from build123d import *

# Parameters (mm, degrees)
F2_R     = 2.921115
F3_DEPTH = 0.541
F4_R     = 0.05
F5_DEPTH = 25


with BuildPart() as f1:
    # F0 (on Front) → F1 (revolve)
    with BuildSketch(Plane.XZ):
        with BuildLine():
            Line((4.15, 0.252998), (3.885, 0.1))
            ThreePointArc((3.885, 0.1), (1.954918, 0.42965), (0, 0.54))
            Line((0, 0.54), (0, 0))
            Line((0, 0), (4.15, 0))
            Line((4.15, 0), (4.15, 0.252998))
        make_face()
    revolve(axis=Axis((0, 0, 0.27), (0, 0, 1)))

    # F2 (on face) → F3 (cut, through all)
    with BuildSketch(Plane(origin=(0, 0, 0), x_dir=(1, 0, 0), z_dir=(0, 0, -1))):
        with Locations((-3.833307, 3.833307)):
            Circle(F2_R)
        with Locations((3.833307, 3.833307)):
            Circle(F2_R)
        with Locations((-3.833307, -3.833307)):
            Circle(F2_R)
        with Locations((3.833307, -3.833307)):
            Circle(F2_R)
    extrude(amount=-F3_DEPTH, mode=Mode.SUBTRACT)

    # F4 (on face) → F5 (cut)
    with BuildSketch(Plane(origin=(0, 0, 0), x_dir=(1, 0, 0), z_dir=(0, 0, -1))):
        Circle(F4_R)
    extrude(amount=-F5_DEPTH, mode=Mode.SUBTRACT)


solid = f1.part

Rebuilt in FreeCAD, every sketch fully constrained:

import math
import FreeCAD as App
import Part
import Sketcher
Q = App.Units.Quantity

doc = App.newDocument("Part")
body = doc.addObject("PartDesign::Body", "Body")

# Sketch on XZ plane
sketch1 = body.newObject("Sketcher::SketchObject", "Sketch")
sketch1.AttachmentSupport = (doc.getObject("XZ_Plane"), [""])
sketch1.MapMode = "FlatFace"
sketch1.addGeometry([
    Part.LineSegment(App.Vector(4.15, 0.25, 0), App.Vector(3.88, 0.1, 0)),  # 0
    Part.ArcOfCircle(Part.Circle(App.Vector(0, -16.83, 0), App.Vector(0, 0, 1), 17.37), math.radians(77.08), math.radians(90)),  # 1
    Part.LineSegment(App.Vector(0, 0.54, 0), App.Vector(0, 0, 0)),  # 2
    Part.LineSegment(App.Vector(0, 0, 0), App.Vector(4.15, 0, 0)),  # 3
    Part.LineSegment(App.Vector(4.15, 0, 0), App.Vector(4.15, 0.25, 0)),  # 4
], False)
sketch1.addConstraint([
    Sketcher.Constraint("Coincident", 0, 2, 1, 1),
    Sketcher.Constraint("Coincident", 1, 2, 2, 1),
    Sketcher.Constraint("Coincident", 2, 2, 3, 1),
    Sketcher.Constraint("Coincident", 3, 2, 4, 1),
    Sketcher.Constraint("Coincident", 4, 2, 0, 1),
    Sketcher.Constraint("Vertical", 2),
    Sketcher.Constraint("Horizontal", 3),
    Sketcher.Constraint("Vertical", 4),
    Sketcher.Constraint("Coincident", 2, 2, -1, 1),
    Sketcher.Constraint("DistanceX", 3, 1, 3, 2, Q("4.15 mm")),
    Sketcher.Constraint("DistanceY", 2, 2, 2, 1, Q("0.54 mm")),
    Sketcher.Constraint("DistanceY", -1, 1, 0, 2, Q("0.1 mm")),
    Sketcher.Constraint("DistanceX", -1, 1, 0, 2, Q("3.885 mm")),
    Sketcher.Constraint("Radius", 1, Q("17.371323 mm")),
    Sketcher.Constraint("DistanceY", 4, 2, 1, 2, Q("0.287002 mm")),
])
revolution = body.newObject("PartDesign::Revolution", "Revolution")
revolution.Profile = sketch1
revolution.ReferenceAxis = (sketch1, ["V_Axis"])
revolution.Angle = 360

# Sketch on XY plane
sketch2 = body.newObject("Sketcher::SketchObject", "Sketch001")
sketch2.AttachmentSupport = (doc.getObject("XY_Plane"), [""])
sketch2.MapMode = "FlatFace"
sketch2.addGeometry([
    Part.Circle(App.Vector(-3.8, -3.8, 0), App.Vector(0, 0, 1), 2.9),
    Part.Circle(App.Vector(3.8, -3.8, 0), App.Vector(0, 0, 1), 2.9),
    Part.Circle(App.Vector(-3.8, 3.8, 0), App.Vector(0, 0, 1), 2.9),
    Part.Circle(App.Vector(3.8, 3.8, 0), App.Vector(0, 0, 1), 2.9),
], False)
sketch2.addConstraint([
    Sketcher.Constraint("Equal", 0, 1),
    Sketcher.Constraint("Equal", 1, 2),
    Sketcher.Constraint("Equal", 2, 3),
    Sketcher.Constraint("Symmetric", 1, 3, 2, 3, -1, 1),
    Sketcher.Constraint("Symmetric", 0, 3, 3, 3, -1, 1),
    Sketcher.Constraint("Symmetric", 0, 3, 1, 3, -2),
    Sketcher.Constraint("Diameter", 0, Q("5.84223 mm")),
    Sketcher.Constraint("DistanceX", 0, 3, -1, 1, Q("3.833307 mm")),
    Sketcher.Constraint("DistanceY", 0, 3, -1, 1, Q("3.833307 mm")),
])
pocket1 = body.newObject("PartDesign::Pocket", "Pocket")
pocket1.Profile = sketch2
pocket1.Type = "ThroughAll"
pocket1.Reversed = True

# Sketch on XY plane
sketch3 = body.newObject("Sketcher::SketchObject", "Sketch002")
sketch3.AttachmentSupport = (doc.getObject("XY_Plane"), [""])
sketch3.MapMode = "FlatFace"
sketch3.addGeometry(Part.Circle(App.Vector(0, 0, 0), App.Vector(0, 0, 1), 0.05), False)
sketch3.addConstraint([
    Sketcher.Constraint("Coincident", 0, 3, -1, 1),
    Sketcher.Constraint("Diameter", 0, Q("0.1 mm")),
])
pocket2 = body.newObject("PartDesign::Pocket", "Pocket001")
pocket2.Profile = sketch3
pocket2.Length = 25
pocket2.Reversed = True

doc.recompute()
